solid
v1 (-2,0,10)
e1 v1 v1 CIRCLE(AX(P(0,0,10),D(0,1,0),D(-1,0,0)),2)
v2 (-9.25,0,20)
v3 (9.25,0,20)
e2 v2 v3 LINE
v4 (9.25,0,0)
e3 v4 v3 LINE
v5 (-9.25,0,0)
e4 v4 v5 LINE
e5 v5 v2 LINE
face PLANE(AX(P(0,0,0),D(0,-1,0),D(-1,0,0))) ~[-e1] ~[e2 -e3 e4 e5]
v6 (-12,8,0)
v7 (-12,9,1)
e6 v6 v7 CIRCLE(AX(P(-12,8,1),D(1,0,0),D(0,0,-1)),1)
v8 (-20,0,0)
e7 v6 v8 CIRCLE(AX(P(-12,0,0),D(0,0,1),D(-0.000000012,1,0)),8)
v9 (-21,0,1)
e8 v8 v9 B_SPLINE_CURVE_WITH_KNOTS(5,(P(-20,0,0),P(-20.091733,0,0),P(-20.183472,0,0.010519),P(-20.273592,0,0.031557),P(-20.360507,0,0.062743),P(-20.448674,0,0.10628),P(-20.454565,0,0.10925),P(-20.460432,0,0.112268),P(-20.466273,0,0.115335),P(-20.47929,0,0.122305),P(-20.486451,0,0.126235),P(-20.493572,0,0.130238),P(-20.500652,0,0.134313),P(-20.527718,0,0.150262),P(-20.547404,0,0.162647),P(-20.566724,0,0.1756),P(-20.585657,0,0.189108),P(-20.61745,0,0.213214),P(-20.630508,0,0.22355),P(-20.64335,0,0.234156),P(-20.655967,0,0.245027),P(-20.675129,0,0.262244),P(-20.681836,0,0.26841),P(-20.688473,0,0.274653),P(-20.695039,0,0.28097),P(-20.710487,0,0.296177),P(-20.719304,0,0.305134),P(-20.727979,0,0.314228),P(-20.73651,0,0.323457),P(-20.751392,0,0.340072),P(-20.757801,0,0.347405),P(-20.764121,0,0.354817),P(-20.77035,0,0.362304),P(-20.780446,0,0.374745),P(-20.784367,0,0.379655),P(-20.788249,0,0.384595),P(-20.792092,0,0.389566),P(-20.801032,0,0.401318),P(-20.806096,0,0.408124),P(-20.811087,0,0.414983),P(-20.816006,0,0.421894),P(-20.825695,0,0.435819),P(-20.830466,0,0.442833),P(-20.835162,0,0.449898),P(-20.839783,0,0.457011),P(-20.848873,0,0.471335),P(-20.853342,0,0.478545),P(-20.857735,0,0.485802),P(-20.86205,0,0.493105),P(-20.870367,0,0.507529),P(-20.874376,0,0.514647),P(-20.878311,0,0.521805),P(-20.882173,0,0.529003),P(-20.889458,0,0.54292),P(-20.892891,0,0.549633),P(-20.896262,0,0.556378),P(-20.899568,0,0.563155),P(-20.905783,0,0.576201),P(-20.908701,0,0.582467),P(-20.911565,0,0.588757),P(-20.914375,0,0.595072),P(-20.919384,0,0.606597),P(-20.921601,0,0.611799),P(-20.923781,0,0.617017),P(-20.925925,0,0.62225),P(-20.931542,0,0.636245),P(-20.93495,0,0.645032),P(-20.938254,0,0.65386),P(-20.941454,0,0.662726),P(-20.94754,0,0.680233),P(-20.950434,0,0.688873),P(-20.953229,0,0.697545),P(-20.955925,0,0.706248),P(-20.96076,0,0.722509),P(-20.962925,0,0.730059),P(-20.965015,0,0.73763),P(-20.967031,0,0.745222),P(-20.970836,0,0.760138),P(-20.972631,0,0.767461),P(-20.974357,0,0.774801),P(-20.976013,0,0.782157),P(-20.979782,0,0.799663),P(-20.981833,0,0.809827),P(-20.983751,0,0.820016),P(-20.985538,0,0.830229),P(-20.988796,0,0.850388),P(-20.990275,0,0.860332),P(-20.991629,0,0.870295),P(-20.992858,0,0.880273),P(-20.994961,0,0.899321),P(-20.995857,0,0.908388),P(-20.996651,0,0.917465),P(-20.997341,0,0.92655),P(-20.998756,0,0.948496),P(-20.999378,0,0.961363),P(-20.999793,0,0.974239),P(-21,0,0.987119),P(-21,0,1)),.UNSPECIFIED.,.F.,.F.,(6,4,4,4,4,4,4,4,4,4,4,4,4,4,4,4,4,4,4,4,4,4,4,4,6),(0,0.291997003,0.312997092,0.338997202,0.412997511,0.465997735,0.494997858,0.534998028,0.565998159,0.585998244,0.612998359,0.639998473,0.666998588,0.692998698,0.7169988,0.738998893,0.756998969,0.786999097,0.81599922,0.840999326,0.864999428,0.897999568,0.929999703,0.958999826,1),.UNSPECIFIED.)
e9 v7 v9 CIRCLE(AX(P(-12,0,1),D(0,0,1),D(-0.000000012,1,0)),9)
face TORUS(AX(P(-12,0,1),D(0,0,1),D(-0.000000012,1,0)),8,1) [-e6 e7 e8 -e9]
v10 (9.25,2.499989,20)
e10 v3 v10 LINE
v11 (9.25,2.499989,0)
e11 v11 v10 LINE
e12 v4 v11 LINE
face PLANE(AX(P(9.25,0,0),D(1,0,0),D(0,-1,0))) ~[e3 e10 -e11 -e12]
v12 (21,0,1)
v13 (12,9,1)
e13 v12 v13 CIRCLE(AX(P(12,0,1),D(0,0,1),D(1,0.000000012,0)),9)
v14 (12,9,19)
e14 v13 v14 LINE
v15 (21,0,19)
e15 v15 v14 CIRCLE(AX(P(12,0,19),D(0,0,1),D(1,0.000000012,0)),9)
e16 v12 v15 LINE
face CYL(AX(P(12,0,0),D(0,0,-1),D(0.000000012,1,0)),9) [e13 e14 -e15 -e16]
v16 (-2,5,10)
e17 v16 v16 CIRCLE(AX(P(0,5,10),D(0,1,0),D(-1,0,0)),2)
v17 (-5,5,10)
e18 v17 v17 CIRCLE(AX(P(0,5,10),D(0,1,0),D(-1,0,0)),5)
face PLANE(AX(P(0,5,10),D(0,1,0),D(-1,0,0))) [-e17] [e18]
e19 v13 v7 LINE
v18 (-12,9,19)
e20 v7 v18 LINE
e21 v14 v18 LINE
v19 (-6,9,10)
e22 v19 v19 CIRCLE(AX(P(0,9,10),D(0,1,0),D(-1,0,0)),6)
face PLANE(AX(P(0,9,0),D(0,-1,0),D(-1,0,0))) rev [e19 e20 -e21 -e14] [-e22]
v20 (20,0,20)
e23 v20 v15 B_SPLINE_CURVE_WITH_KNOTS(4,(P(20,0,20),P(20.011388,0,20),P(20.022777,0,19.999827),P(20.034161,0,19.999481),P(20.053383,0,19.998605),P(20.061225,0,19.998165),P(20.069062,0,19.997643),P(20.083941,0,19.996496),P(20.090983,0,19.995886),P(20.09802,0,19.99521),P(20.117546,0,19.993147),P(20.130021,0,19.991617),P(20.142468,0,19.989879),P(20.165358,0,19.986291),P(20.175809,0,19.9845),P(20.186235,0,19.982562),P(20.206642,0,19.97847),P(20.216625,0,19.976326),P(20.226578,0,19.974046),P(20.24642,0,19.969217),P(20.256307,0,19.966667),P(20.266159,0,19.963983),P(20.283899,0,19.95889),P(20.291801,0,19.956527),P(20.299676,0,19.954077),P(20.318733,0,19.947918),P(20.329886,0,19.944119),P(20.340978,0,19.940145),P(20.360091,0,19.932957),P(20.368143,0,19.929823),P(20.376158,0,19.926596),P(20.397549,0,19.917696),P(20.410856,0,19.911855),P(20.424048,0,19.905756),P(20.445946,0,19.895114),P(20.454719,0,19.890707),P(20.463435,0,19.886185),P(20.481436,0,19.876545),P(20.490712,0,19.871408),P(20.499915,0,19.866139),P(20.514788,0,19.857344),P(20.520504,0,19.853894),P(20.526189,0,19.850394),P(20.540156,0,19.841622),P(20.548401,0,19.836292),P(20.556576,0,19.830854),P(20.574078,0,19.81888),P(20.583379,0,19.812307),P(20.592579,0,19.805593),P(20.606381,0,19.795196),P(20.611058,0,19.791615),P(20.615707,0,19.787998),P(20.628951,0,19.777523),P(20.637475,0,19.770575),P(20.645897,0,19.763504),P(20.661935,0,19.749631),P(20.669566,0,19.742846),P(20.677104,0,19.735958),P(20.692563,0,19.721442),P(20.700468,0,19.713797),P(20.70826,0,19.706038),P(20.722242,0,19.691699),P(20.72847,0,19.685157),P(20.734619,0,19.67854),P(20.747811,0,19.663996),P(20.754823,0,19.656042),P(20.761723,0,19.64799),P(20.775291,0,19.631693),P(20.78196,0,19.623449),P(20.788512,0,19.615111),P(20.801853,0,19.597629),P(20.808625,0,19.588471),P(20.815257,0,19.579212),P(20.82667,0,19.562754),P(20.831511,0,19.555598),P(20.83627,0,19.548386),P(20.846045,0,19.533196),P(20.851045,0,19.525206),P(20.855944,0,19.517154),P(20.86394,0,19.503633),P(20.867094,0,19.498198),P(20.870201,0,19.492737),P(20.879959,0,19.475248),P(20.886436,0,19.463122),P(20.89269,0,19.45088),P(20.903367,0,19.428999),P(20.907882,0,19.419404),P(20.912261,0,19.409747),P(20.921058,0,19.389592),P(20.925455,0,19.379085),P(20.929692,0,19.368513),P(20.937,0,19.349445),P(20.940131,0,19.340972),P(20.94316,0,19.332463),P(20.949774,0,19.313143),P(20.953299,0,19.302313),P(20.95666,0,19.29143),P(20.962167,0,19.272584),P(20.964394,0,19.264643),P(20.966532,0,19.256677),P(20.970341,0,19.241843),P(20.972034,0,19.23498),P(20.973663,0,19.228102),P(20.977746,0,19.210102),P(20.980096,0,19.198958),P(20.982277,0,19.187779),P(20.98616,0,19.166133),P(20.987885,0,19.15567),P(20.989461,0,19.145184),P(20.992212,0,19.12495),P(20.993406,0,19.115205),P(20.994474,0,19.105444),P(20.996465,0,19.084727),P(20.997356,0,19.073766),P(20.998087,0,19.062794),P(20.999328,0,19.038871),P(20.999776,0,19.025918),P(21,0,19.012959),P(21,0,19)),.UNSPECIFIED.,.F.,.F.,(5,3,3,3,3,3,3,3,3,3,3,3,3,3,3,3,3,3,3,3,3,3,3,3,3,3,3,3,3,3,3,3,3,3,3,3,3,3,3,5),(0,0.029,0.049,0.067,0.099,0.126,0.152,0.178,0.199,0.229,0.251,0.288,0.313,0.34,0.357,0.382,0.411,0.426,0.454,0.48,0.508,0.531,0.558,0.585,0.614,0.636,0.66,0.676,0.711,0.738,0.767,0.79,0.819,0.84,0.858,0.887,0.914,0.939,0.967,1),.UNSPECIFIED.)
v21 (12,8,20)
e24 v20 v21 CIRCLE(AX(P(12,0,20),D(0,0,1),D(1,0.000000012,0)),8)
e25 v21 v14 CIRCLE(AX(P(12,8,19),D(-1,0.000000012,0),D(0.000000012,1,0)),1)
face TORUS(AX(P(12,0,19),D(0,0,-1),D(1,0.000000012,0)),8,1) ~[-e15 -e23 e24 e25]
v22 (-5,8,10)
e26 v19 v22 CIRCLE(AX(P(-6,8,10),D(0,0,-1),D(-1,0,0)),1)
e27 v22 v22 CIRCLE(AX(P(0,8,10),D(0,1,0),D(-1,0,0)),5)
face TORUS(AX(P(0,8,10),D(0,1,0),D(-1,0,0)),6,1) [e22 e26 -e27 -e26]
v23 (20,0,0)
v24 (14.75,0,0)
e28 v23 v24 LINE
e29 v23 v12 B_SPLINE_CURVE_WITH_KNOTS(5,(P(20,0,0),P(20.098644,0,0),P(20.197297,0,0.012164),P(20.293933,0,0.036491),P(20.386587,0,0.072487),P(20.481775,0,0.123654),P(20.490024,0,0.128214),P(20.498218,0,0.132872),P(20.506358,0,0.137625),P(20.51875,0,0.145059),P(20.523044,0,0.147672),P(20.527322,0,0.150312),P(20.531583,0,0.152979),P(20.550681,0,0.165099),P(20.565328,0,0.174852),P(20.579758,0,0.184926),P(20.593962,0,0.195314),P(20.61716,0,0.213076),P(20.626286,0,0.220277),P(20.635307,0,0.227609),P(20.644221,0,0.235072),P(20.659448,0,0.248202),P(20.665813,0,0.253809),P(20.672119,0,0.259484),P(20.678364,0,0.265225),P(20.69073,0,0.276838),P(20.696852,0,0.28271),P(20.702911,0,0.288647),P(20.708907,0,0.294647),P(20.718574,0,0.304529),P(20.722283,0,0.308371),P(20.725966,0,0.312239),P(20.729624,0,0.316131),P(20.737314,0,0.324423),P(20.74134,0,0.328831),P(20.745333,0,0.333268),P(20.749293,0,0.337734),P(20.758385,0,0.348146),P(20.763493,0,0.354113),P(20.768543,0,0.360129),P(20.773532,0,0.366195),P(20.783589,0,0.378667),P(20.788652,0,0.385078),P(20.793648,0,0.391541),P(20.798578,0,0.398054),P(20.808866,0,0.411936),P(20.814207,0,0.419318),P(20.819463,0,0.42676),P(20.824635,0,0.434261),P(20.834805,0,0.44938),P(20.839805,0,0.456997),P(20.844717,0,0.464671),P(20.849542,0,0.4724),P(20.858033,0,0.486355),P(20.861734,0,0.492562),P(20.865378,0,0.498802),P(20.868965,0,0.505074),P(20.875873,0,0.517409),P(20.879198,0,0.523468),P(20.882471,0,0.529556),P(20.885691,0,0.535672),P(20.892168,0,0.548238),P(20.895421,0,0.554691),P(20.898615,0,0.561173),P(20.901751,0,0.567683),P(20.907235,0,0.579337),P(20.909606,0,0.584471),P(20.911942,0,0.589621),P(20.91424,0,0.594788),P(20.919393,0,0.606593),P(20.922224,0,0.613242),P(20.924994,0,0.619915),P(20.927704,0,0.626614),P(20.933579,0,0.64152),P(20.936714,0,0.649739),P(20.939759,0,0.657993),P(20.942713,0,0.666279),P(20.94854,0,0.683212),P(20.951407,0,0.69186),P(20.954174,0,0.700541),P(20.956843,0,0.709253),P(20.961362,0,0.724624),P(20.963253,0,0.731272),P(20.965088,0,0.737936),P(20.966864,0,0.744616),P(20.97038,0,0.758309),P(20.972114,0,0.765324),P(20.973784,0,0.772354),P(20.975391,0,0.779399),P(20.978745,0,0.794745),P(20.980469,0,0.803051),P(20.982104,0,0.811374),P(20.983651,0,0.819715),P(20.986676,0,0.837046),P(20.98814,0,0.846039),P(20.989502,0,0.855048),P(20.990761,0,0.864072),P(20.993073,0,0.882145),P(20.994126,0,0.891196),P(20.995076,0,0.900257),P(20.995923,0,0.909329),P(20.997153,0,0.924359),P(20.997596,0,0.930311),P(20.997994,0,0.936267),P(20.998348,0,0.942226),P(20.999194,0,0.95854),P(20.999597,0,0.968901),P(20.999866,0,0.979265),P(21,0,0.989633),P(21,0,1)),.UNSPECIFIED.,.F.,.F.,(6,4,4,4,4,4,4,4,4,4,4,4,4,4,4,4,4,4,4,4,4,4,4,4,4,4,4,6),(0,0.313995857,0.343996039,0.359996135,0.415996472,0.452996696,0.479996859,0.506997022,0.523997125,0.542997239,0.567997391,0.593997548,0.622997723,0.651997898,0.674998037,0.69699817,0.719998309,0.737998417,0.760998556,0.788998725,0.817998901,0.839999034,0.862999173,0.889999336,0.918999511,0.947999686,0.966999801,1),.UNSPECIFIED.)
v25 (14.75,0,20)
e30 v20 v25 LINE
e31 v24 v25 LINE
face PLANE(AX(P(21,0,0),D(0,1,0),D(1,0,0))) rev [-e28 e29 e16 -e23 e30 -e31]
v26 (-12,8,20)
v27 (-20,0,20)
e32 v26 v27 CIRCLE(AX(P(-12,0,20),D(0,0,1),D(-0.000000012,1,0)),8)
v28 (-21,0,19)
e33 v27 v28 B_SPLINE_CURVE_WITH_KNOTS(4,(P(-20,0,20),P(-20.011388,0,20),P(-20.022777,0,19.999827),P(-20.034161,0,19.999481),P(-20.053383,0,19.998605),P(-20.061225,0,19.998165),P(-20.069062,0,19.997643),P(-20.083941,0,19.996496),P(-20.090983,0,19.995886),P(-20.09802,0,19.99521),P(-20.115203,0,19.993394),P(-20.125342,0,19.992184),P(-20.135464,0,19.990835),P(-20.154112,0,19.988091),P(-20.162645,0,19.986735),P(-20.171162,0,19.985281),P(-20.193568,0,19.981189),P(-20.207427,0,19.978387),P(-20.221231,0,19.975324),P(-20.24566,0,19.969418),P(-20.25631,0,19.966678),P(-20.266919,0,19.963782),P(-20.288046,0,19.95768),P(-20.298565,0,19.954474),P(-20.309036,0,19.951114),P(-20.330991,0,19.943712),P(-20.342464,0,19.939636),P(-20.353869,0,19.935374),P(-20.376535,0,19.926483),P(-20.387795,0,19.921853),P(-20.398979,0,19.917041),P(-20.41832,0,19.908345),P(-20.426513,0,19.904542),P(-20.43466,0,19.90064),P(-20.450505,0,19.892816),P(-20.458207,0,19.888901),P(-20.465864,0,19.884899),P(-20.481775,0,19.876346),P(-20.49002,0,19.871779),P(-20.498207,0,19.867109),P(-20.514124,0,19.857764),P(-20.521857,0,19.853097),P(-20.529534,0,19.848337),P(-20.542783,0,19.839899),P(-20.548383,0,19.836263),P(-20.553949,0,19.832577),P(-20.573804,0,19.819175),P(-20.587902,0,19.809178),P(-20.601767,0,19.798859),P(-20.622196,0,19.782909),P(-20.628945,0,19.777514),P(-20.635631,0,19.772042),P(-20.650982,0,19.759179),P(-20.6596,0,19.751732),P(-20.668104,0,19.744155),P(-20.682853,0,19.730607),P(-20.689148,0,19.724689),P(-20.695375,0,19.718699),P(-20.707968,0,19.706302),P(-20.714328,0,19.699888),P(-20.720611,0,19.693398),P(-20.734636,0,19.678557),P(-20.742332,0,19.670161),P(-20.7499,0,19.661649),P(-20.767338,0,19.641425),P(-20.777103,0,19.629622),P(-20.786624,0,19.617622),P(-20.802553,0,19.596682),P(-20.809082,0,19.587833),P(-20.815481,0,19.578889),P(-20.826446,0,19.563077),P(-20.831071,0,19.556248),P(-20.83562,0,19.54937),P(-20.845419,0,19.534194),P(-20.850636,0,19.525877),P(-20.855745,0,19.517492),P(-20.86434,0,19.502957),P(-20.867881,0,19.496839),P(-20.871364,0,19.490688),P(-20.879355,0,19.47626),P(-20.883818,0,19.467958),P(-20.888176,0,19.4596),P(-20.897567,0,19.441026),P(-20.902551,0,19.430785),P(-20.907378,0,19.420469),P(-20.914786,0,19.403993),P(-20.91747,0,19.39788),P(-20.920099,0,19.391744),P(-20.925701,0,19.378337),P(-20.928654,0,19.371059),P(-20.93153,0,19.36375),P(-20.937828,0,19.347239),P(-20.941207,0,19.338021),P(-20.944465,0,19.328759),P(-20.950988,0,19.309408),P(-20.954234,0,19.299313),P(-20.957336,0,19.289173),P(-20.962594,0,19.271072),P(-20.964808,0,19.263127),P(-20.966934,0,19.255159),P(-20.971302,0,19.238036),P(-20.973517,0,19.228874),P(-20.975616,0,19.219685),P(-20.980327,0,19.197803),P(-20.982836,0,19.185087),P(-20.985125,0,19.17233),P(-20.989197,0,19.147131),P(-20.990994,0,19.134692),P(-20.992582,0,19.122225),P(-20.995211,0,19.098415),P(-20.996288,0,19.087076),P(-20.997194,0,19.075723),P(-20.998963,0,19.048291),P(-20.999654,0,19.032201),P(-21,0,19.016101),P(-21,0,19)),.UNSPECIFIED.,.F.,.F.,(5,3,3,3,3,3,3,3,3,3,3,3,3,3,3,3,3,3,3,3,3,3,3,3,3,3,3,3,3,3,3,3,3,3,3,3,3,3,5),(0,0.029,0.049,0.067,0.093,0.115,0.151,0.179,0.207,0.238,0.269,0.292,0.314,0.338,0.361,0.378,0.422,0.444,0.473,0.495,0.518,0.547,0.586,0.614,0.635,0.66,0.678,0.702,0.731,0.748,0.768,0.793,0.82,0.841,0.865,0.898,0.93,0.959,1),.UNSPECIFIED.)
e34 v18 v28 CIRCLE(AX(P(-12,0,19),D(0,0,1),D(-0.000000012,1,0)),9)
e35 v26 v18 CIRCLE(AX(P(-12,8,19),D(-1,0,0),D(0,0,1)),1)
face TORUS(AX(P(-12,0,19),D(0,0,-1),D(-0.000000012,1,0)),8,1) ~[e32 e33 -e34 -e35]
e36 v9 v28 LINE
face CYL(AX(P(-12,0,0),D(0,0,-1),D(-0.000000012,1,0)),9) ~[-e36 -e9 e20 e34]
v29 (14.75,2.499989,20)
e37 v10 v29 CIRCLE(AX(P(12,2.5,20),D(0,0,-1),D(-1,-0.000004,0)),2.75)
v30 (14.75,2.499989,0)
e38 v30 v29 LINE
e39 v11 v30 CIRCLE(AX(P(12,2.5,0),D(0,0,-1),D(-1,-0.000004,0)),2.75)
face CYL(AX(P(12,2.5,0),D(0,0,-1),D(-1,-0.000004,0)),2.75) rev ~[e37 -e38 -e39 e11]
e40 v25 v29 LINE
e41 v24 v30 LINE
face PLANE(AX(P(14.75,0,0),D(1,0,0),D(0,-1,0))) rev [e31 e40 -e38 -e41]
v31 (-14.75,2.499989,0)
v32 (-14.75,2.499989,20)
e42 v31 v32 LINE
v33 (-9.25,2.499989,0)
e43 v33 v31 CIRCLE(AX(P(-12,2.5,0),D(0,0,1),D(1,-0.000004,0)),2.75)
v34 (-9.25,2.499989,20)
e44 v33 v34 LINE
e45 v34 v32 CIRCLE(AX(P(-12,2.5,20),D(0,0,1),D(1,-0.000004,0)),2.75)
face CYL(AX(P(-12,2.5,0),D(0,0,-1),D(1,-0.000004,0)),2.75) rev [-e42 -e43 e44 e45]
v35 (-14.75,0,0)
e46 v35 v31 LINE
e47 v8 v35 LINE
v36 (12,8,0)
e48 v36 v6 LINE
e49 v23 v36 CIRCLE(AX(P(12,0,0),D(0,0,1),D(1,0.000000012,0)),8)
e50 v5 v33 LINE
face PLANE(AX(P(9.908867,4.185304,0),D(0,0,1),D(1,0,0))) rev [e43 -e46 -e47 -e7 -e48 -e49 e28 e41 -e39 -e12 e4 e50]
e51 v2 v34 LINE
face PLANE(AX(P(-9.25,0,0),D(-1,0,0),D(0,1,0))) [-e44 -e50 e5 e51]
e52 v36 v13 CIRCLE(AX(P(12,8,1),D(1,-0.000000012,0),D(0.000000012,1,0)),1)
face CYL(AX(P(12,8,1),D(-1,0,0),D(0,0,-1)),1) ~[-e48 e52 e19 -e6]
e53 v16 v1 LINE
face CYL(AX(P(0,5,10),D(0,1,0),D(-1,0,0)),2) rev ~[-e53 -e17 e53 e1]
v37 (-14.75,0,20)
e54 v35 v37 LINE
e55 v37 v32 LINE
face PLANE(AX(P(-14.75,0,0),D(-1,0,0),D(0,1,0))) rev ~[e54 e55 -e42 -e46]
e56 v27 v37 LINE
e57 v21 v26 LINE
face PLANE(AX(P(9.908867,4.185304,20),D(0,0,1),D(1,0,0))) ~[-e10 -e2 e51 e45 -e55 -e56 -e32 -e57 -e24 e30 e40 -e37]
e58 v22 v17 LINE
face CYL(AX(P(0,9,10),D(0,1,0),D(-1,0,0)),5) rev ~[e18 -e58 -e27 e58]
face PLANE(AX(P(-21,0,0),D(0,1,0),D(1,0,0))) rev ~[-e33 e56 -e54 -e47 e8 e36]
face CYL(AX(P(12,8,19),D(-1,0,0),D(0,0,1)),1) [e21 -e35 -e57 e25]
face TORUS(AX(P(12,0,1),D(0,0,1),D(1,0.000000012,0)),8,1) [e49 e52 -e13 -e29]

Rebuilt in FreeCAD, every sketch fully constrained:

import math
import FreeCAD as App
import Part
import Sketcher
Q = App.Units.Quantity


def edges_at(feature, points):
    """Names of the edges that pass closest to the given points."""
    edges = feature.Shape.Edges
    near = lambda p: min(range(len(edges)), key=lambda i: edges[i].distToShape(Part.Vertex(*p))[0])
    return sorted({f"Edge{near(p) + 1}" for p in points})

doc = App.newDocument("Part")
body = doc.addObject("PartDesign::Body", "Body")

# Sketch on XY plane
sketch1 = doc.addObject("Sketcher::SketchObject", "Sketch")
body.addObject(sketch1)
sketch1.AttachmentSupport = (doc.XY_Plane, [""])
sketch1.MapMode = "FlatFace"
sketch1.addGeometry([
    Part.LineSegment(App.Vector(0, 0, 0), App.Vector(0, 9, 0)),  # 0
    Part.LineSegment(App.Vector(0, 9, 0), App.Vector(-12, 9, 0)),  # 1
    Part.ArcOfCircle(Part.Circle(App.Vector(-12, 0, 0), App.Vector(0, 0, 1), 9), math.radians(90), math.radians(180)),  # 2
    Part.LineSegment(App.Vector(-21, 0, 0), App.Vector(-14.8, 0, 0)),  # 3
    Part.LineSegment(App.Vector(-14.8, 0, 0), App.Vector(-14.8, 2.5, 0)),  # 4
    Part.ArcOfCircle(Part.Circle(App.Vector(-12, 2.5, 0), App.Vector(0, 0, 1), 2.8), math.radians(0), math.radians(180)),  # 5
    Part.LineSegment(App.Vector(-9.2, 2.5, 0), App.Vector(-9.2, 0, 0)),  # 6
    Part.LineSegment(App.Vector(-9.2, 0, 0), App.Vector(0, 0, 0)),  # 7
], False)
sketch1.addConstraint([
    Sketcher.Constraint("Coincident", 0, 2, 1, 1),
    Sketcher.Constraint("Tangent", 1, 2, 2, 1),
    Sketcher.Constraint("Coincident", 2, 2, 3, 1),
    Sketcher.Constraint("Coincident", 3, 2, 4, 1),
    Sketcher.Constraint("Coincident", 4, 2, 5, 2),
    Sketcher.Constraint("Coincident", 5, 1, 6, 1),
    Sketcher.Constraint("Coincident", 6, 2, 7, 1),
    Sketcher.Constraint("Coincident", 7, 2, 0, 1),
    Sketcher.Constraint("Vertical", 0),
    Sketcher.Constraint("Horizontal", 1),
    Sketcher.Constraint("Horizontal", 3),
    Sketcher.Constraint("Vertical", 4),
    Sketcher.Constraint("Vertical", 6),
    Sketcher.Constraint("Horizontal", 7),
    Sketcher.Constraint("Coincident", 7, 2, -1, 1),
    Sketcher.Constraint("PointOnObject", 2, 3, -1),
    Sketcher.Constraint("PointOnObject", 2, 2, -1),
    Sketcher.Constraint("Horizontal", 4, 2, 5, 1),
    Sketcher.Constraint("Vertical", 2, 3, 5, 3),
    Sketcher.Constraint("Radius", 2, Q("9 mm")),
    Sketcher.Constraint("DistanceX", 1, 2, 1, 1, Q("12 mm")),
    Sketcher.Constraint("Radius", 5, Q("2.75 mm")),
    Sketcher.Constraint("DistanceY", -1, 1, 5, 3, Q("2.5 mm")),
    Sketcher.Constraint("DistanceY", 4, 1, 4, 2, Q("2.499989 mm")),
])
pad1 = doc.addObject("PartDesign::Pad", "Pad")
body.addObject(pad1)
pad1.Profile = sketch1
pad1.Length = 20
body2 = doc.addObject("PartDesign::Body", "Body001")
doc.recompute()

body2.BaseFeature = body
doc.recompute()

mirroring = doc.addObject("Part::Mirroring", "Mirroring")
mirroring.Source = body
mirroring.Base = App.Vector(0, 0, 0)
mirroring.Normal = App.Vector(1, 0, 0)
body3 = doc.addObject("PartDesign::Body", "Body002")
body3.BaseFeature = mirroring
boolean = doc.addObject("PartDesign::Boolean", "Boolean")
body2.addObject(boolean)
boolean.Type = "Fuse"
boolean.addObjects([body3])
doc.recompute()

# Sketch on XZ plane
sketch2 = doc.addObject("Sketcher::SketchObject", "Sketch001")
body2.addObject(sketch2)
sketch2.AttachmentSupport = (doc.getObject("XZ_Plane001"), [""])
sketch2.MapMode = "FlatFace"
sketch2.AttachmentOffset = App.Placement(App.Vector(0, 0, -9), App.Rotation())
sketch2.addGeometry(Part.Circle(App.Vector(0, 10, 0), App.Vector(0, 0, 1), 5), False)
sketch2.addConstraint([
    Sketcher.Constraint("PointOnObject", 0, 3, -2),
    Sketcher.Constraint("Diameter", 0, Q("10 mm")),
    Sketcher.Constraint("DistanceY", -1, 1, 0, 3, Q("10 mm")),
])
pocket1 = doc.addObject("PartDesign::Pocket", "Pocket")
body2.addObject(pocket1)
pocket1.Profile = sketch2
pocket1.Length = 4
pocket1.Reversed = True

# Sketch on XZ plane
sketch3 = doc.addObject("Sketcher::SketchObject", "Sketch002")
body2.addObject(sketch3)
sketch3.AttachmentSupport = (doc.getObject("XZ_Plane001"), [""])
sketch3.MapMode = "FlatFace"
sketch3.AttachmentOffset = App.Placement(App.Vector(0, 0, -5), App.Rotation())
sketch3.addGeometry(Part.Circle(App.Vector(0, 10, 0), App.Vector(0, 0, 1), 2), False)
sketch3.addConstraint([
    Sketcher.Constraint("PointOnObject", 0, 3, -2),
    Sketcher.Constraint("Diameter", 0, Q("4 mm")),
    Sketcher.Constraint("DistanceY", -1, 1, 0, 3, Q("10 mm")),
])
pocket2 = doc.addObject("PartDesign::Pocket", "Pocket001")
body2.addObject(pocket2)
pocket2.Profile = sketch3
pocket2.Length = 5
pocket2.Reversed = True
doc.recompute()

fillet = doc.addObject("PartDesign::Fillet", "Fillet")
body2.addObject(fillet)
fillet.Base = (pocket2, edges_at(pocket2, [
    (-18.364, 6.364, 20),
    (0, 9, 20),
    (0, 9, 20),
    (18.364, 6.364, 20),
    (-18.364, 6.364, 0),
    (0, 9, 0),
    (0, 9, 0),
    (18.364, 6.364, 0),
]))
fillet.Radius = 1
doc.recompute()

fillet2 = doc.addObject("PartDesign::Fillet", "Fillet001")
body2.addObject(fillet2)
fillet2.Base = (fillet, edges_at(fillet, [(5, 9, 10)]))
fillet2.Radius = 1
mirroring.Visibility = False

doc.recompute()
